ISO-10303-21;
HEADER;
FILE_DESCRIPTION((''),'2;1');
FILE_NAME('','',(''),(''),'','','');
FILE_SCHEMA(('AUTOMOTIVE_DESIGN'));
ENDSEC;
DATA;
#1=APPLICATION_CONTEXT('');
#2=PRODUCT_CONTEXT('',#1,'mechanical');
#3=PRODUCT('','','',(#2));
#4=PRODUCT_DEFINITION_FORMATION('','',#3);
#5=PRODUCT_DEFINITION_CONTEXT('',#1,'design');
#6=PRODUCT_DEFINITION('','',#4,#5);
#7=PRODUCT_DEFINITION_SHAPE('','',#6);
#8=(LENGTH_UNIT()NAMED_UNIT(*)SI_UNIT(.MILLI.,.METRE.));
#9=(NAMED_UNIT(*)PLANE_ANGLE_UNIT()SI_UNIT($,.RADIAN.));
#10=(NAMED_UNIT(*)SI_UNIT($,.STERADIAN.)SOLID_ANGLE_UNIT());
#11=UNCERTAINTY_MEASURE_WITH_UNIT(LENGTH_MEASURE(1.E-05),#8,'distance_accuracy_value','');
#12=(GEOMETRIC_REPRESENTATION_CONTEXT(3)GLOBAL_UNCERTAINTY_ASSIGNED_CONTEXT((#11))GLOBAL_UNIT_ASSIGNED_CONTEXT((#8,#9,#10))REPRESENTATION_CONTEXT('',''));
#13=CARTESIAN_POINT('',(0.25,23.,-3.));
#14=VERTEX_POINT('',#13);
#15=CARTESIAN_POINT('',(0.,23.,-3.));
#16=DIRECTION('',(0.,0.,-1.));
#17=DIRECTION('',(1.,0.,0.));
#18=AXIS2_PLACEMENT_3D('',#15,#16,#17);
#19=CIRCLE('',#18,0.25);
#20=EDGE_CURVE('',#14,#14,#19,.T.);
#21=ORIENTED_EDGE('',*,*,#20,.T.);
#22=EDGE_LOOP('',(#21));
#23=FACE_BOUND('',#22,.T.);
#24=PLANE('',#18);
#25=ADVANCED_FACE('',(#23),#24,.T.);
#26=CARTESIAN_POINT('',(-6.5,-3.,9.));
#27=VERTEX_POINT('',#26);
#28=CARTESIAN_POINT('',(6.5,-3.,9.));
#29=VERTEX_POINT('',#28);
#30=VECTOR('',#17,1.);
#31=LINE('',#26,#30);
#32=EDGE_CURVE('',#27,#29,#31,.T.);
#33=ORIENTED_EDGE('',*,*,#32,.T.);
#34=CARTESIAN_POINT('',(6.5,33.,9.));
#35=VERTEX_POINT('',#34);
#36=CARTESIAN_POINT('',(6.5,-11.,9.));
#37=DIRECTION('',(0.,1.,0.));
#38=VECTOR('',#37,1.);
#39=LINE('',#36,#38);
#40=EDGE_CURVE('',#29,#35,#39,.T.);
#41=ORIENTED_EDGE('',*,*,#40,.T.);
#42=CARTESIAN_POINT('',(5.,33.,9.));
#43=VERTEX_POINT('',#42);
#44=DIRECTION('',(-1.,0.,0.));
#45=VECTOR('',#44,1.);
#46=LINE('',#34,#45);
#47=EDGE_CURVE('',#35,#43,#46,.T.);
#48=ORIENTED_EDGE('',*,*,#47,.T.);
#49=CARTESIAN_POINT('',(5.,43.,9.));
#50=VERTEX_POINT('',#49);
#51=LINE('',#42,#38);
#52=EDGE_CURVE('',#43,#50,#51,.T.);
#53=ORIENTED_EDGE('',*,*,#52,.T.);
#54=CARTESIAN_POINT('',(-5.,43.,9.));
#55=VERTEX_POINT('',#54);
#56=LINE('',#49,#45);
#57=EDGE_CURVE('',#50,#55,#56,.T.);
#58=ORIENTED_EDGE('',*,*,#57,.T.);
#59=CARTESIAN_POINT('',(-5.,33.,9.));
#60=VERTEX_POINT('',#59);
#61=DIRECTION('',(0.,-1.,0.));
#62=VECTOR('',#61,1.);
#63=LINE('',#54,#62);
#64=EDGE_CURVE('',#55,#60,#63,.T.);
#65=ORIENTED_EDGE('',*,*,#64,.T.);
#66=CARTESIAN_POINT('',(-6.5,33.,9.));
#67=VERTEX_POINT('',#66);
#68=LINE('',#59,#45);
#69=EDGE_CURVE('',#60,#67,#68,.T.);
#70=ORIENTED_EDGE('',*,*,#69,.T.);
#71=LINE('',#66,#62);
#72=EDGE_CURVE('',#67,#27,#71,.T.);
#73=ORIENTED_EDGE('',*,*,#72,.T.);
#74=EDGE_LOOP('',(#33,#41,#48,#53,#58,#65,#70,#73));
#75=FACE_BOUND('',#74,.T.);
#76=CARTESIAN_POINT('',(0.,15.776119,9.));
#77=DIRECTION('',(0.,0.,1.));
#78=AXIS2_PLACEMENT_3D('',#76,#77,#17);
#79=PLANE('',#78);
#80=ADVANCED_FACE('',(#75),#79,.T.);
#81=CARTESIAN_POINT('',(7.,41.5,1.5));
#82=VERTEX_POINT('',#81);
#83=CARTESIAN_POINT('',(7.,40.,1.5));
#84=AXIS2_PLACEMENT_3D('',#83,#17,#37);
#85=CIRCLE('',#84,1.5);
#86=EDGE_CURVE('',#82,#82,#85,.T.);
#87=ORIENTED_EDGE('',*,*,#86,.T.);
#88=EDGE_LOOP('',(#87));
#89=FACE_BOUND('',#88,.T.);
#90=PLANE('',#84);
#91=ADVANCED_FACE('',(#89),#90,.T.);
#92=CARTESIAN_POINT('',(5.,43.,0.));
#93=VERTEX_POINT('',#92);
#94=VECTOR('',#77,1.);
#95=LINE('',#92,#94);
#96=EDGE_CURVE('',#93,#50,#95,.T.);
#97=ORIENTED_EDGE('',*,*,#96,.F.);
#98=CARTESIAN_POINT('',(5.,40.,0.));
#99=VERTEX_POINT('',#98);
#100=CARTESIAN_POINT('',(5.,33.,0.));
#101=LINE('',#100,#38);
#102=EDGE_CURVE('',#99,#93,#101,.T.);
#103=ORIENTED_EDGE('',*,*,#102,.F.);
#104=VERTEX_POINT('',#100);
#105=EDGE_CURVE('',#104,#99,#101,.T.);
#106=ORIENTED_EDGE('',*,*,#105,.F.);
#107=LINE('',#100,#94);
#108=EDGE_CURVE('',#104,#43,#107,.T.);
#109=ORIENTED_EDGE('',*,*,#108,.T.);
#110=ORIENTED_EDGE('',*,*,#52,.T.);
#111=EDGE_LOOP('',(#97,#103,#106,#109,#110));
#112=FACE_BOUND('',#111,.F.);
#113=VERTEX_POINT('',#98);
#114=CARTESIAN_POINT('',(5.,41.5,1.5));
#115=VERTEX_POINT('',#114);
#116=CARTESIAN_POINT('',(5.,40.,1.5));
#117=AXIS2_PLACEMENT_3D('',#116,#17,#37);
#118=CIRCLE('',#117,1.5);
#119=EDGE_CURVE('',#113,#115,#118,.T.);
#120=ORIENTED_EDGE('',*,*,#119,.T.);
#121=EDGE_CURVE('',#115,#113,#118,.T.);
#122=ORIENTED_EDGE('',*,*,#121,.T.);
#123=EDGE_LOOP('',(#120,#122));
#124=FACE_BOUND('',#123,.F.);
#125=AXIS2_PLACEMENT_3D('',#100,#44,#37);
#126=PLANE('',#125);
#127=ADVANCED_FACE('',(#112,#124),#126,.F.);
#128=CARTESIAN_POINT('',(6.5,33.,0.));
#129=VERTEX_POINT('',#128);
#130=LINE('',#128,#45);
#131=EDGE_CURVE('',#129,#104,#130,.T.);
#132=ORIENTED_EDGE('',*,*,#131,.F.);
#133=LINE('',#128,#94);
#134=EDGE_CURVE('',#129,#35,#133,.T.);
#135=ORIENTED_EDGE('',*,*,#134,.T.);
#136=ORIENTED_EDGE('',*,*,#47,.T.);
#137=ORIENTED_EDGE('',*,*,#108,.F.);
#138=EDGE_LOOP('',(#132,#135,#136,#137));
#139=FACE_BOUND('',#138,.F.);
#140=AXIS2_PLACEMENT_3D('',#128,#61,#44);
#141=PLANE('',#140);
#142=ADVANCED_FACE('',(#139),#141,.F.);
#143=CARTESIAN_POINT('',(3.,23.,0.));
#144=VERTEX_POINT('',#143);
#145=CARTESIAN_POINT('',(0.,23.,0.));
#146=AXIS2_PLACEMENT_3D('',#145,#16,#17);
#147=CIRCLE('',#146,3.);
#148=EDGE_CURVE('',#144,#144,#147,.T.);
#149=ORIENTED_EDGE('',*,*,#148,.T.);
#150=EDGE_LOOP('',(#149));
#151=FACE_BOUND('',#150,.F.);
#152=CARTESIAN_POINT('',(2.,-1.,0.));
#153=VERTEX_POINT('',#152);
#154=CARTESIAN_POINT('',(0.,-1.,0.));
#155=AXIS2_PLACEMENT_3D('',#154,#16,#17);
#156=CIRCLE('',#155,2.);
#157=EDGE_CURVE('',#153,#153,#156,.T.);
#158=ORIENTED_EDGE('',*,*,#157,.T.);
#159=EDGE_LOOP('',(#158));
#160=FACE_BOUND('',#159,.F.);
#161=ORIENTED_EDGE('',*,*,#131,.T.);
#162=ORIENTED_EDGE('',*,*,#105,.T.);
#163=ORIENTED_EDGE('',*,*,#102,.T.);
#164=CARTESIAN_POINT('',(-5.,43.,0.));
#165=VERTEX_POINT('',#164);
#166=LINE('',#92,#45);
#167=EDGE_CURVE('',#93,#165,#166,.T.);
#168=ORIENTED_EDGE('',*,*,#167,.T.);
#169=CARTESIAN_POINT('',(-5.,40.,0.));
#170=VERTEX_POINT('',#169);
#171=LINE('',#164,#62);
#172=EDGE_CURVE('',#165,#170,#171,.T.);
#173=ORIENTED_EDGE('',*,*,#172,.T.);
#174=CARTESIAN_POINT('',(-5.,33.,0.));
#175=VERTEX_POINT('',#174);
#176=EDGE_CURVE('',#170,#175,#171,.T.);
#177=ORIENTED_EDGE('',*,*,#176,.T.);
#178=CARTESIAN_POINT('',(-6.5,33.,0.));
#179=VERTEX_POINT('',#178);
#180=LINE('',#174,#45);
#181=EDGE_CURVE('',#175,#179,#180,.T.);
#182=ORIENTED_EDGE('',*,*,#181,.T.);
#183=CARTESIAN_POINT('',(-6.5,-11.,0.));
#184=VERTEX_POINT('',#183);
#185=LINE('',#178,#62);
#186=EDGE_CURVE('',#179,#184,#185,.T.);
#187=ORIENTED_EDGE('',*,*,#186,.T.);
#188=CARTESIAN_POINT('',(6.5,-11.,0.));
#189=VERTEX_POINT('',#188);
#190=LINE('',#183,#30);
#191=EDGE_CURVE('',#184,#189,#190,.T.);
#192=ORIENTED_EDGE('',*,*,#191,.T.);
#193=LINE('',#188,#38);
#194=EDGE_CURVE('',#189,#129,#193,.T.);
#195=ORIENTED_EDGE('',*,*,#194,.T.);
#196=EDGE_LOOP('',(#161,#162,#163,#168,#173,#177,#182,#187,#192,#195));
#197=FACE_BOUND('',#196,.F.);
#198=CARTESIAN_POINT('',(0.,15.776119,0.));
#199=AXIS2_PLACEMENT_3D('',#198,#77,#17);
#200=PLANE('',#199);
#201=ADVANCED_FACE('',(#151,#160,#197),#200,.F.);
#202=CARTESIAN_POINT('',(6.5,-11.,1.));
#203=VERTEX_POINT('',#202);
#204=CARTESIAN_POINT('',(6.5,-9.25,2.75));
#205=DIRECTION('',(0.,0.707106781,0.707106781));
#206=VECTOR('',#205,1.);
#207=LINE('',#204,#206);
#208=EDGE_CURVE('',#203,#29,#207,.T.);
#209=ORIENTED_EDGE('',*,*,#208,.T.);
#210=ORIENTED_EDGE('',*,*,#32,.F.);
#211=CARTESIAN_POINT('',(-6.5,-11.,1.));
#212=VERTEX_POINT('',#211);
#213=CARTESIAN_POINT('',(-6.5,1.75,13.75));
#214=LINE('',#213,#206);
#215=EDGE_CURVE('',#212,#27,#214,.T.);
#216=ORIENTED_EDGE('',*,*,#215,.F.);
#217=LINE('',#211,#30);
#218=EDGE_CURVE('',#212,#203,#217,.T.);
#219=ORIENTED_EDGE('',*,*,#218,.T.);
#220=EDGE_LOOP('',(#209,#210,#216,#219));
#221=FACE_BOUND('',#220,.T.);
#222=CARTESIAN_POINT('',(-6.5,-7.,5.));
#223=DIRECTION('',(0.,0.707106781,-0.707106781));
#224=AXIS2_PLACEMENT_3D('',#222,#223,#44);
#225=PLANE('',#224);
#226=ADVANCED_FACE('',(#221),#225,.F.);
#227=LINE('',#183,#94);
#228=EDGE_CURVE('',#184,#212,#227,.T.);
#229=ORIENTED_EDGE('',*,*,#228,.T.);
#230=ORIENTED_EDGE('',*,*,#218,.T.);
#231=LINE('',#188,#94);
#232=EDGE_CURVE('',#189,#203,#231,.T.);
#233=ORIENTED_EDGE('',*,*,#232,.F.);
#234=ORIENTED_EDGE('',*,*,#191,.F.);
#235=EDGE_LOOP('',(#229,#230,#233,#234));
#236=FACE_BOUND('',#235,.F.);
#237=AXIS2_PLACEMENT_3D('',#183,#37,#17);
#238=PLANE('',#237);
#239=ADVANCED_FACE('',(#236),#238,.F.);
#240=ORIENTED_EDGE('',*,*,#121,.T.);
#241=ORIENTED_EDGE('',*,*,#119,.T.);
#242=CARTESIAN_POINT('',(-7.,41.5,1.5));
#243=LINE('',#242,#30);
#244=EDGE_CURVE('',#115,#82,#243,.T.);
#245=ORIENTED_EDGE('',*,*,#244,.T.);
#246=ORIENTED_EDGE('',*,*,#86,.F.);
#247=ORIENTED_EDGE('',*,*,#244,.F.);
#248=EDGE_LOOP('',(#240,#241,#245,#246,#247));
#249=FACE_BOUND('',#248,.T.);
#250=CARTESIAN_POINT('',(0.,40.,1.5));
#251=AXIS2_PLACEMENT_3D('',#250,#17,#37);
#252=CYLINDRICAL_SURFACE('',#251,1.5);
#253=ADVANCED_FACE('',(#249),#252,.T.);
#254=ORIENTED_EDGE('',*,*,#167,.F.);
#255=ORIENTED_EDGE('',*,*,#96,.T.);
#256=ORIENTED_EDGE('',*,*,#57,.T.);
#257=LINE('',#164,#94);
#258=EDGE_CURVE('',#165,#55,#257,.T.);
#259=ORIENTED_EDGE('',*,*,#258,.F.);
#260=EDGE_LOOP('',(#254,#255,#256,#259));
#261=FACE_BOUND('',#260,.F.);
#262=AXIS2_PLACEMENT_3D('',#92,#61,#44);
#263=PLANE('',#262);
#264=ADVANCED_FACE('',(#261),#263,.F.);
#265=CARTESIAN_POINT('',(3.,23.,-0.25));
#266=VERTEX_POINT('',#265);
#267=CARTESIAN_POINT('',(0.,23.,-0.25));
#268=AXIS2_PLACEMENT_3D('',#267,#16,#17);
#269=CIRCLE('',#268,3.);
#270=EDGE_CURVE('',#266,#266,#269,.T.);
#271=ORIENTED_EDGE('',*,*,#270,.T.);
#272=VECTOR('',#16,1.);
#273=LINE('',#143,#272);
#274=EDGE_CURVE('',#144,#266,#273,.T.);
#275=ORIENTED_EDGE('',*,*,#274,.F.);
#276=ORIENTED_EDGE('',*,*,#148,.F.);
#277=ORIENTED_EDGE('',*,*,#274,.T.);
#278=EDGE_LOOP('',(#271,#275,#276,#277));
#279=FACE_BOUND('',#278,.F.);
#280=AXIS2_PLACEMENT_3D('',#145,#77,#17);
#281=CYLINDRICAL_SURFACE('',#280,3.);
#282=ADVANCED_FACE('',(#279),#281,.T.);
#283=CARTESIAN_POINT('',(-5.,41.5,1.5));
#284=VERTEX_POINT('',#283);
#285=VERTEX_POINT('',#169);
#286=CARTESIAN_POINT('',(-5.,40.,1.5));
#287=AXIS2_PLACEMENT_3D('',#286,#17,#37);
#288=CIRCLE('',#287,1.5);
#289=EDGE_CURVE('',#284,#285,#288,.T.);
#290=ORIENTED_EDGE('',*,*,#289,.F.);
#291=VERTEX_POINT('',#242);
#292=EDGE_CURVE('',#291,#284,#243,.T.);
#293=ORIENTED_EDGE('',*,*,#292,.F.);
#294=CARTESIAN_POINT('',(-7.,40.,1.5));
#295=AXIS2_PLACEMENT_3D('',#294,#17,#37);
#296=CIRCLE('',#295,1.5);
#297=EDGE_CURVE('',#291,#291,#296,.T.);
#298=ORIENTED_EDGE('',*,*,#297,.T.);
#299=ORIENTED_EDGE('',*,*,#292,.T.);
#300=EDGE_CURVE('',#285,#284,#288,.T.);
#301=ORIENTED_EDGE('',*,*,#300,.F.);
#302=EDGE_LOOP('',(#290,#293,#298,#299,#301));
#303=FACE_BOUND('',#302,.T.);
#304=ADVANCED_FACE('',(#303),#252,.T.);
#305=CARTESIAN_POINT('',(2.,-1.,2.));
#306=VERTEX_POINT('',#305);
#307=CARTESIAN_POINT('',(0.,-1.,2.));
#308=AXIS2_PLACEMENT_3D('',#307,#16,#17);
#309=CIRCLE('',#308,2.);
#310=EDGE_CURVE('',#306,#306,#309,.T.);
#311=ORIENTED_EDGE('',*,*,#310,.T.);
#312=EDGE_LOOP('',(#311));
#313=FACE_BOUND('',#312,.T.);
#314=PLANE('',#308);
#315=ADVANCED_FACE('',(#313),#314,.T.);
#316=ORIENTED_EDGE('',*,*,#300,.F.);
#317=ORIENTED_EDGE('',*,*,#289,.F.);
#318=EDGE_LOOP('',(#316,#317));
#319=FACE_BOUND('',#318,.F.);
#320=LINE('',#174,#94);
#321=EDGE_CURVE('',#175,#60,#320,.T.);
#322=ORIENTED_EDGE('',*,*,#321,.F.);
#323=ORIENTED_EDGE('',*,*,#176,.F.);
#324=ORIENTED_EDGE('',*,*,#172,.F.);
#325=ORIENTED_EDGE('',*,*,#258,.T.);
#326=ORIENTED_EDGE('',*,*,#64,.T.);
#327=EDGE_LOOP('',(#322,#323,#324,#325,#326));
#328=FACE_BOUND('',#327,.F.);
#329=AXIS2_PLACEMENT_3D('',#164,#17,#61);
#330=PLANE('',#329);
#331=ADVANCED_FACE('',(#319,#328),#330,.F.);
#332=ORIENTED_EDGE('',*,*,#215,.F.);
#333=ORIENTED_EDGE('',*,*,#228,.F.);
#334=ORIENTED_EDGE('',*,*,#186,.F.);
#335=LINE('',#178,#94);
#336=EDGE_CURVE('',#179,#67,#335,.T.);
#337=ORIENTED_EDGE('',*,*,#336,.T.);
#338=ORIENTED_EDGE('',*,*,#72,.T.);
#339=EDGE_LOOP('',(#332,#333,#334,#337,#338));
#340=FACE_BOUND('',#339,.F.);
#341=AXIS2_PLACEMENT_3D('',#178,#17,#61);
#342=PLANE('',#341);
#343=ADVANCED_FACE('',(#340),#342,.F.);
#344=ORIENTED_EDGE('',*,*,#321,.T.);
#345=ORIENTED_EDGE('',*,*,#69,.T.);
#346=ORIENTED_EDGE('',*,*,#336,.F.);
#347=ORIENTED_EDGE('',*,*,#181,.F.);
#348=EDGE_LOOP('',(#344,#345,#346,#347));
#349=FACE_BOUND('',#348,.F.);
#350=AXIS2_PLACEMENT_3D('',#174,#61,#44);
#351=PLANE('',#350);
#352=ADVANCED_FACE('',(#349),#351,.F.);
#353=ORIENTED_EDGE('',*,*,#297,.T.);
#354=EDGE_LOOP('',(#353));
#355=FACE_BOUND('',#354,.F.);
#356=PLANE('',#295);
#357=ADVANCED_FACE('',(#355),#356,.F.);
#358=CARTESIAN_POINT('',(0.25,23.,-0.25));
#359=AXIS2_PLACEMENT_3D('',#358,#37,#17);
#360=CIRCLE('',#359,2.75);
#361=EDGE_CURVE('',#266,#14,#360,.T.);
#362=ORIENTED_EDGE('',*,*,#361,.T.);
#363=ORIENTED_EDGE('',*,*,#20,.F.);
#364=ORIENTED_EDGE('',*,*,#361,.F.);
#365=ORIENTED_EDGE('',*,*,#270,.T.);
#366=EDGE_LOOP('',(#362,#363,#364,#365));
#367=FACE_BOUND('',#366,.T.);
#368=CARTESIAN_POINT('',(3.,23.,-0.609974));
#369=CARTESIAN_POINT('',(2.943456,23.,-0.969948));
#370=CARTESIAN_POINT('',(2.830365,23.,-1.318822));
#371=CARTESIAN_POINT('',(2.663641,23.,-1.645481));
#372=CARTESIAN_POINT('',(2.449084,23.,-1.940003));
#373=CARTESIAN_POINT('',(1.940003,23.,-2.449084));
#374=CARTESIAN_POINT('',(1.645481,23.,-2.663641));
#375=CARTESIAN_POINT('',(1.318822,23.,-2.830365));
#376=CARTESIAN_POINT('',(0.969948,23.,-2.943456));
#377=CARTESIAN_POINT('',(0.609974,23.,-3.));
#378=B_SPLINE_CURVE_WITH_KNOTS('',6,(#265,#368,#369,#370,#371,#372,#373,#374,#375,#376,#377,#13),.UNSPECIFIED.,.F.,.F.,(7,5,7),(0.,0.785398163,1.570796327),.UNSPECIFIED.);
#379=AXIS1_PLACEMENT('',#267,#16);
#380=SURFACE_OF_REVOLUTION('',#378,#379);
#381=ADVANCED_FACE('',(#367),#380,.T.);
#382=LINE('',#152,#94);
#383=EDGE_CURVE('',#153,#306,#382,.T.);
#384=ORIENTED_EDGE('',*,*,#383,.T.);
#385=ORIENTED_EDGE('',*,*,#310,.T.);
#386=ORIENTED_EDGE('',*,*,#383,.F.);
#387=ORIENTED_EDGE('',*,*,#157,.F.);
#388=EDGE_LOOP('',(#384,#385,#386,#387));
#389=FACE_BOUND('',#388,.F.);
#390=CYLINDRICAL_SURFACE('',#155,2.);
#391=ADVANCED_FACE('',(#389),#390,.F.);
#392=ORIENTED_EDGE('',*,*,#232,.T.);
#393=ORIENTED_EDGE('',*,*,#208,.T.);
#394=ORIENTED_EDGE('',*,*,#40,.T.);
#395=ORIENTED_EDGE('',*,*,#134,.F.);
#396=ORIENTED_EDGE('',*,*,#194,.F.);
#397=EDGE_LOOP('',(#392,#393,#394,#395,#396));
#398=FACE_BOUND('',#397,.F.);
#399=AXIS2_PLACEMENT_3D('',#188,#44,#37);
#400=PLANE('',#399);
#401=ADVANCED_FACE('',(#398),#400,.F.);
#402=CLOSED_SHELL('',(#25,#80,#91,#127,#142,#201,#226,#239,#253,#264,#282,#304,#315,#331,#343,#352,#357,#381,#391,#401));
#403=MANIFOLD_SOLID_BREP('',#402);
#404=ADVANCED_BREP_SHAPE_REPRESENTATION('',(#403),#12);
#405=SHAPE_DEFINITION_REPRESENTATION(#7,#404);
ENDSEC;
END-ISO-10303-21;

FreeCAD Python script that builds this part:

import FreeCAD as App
import Part
import Sketcher

V = App.Vector


def edges_at(feature, points):
    """Names of the edges that pass closest to the given points."""
    edges = feature.Shape.Edges
    near = lambda p: min(range(len(edges)), key=lambda i: edges[i].distToShape(Part.Vertex(*p))[0])
    return sorted({f"Edge{near(p) + 1}" for p in points})


def add_polygon(sketch, points):
    """Adds a closed chain of lines whose ends are joined by coincident constraints."""
    first, n = sketch.GeometryCount, len(points)
    for a, b in zip(points, points[1:] + points[:1]):
        sketch.addGeometry(Part.LineSegment(App.Vector(*a, 0), App.Vector(*b, 0)), False)
    for i in range(n):
        sketch.addConstraint(Sketcher.Constraint("Coincident", first + i, 2, first + (i + 1) % n, 1))

doc = App.newDocument("Part")
params = doc.addObject("Spreadsheet::Sheet", "Params")
for row, (alias, value) in enumerate([
    ("sketch1_width", "10 mm"),
    ("sketch1_width2", "13 mm"),
    ("sketch1_height", "44 mm"),
    ("pad1_length", "9 mm"),
    ("sketch2_diameter", "3 mm"),
    ("pad2_length", "14 mm"),
    ("sketch3_diameter", "4 mm"),
    ("pocket1_length", "2 mm"),
    ("sketch4_diameter", "6 mm"),
    ("pad3_length", "3 mm"),
    ("fillet_radius", "2.75 mm"),
    ("chamfer_size", "8 mm"),
], start=1):
    params.set(f"A{row}", alias)
    params.set(f"B{row}", "=" + value)
    params.setAlias(f"B{row}", alias)

body = doc.addObject("PartDesign::Body", "Body")

# Sketch on XY plane
sketch1 = body.newObject("Sketcher::SketchObject", "Sketch")
sketch1.AttachmentSupport = (doc.getObject("XY_Plane"), [""])
sketch1.MapMode = "FlatFace"
add_polygon(sketch1, [(6.5, -11), (6.5, 33), (5, 33), (5, 43), (-5, 43), (-5, 33), (-6.5, 33), (-6.5, -11)])  # lines 0-7
sketch1.addConstraint([
    Sketcher.Constraint("Vertical", 0),
    Sketcher.Constraint("Horizontal", 1),
    Sketcher.Constraint("Vertical", 2),
    Sketcher.Constraint("Horizontal", 3),
    Sketcher.Constraint("Vertical", 4),
    Sketcher.Constraint("Horizontal", 5),
    Sketcher.Constraint("Vertical", 6),
    Sketcher.Constraint("Horizontal", 7),
    Sketcher.Constraint("Symmetric", 1, 2, 4, 2, -2),
    Sketcher.Constraint("Equal", 1, 5),
    Sketcher.Constraint("Equal", 3, 2),
    Sketcher.Constraint("DistanceX", 3, 2, 3, 1, 10.0),
    Sketcher.Constraint("DistanceX", 7, 1, 7, 2, 13.0),
    Sketcher.Constraint("DistanceY", 0, 1, 0, 2, 44.0),
    Sketcher.Constraint("DistanceY", -1, 1, 0, 2, 33.0),
])
sketch1.setExpression("Constraints[19]", "Params.sketch1_width")
sketch1.setExpression("Constraints[20]", "Params.sketch1_width2")
sketch1.setExpression("Constraints[21]", "Params.sketch1_height")
pad1 = body.newObject("PartDesign::Pad", "Pad")
pad1.Profile = sketch1
pad1.setExpression("Length", "Params.pad1_length")

# Sketch on YZ plane
sketch2 = body.newObject("Sketcher::SketchObject", "Sketch001")
sketch2.AttachmentSupport = (doc.getObject("YZ_Plane"), [""])
sketch2.MapMode = "FlatFace"
sketch2.addGeometry(Part.Circle(V(40, 1.5, 0), V(0, 0, 1), 1.5), False)
sketch2.addConstraint([
    Sketcher.Constraint("Diameter", 0, 3.0),
    Sketcher.Constraint("DistanceX", -1, 1, 0, 3, 40.0),
    Sketcher.Constraint("DistanceY", -1, 1, 0, 3, 1.5),
])
sketch2.setExpression("Constraints[0]", "Params.sketch2_diameter")
pad2 = body.newObject("PartDesign::Pad", "Pad001")
pad2.Profile = sketch2
pad2.setExpression("Length", "Params.pad2_length")
pad2.Midplane = True

# Sketch on XY plane
sketch3 = body.newObject("Sketcher::SketchObject", "Sketch002")
sketch3.AttachmentSupport = (doc.getObject("XY_Plane"), [""])
sketch3.MapMode = "FlatFace"
sketch3.addGeometry(Part.Circle(V(0, -1, 0), V(0, 0, 1), 2), False)
sketch3.addConstraint([
    Sketcher.Constraint("PointOnObject", 0, 3, -2),
    Sketcher.Constraint("Diameter", 0, 4.0),
    Sketcher.Constraint("DistanceY", 0, 3, -1, 1, 1.0),
])
sketch3.setExpression("Constraints[1]", "Params.sketch3_diameter")
pocket1 = body.newObject("PartDesign::Pocket", "Pocket")
pocket1.Profile = sketch3
pocket1.setExpression("Length", "Params.pocket1_length")
pocket1.Reversed = True

# Sketch on XY plane
sketch4 = body.newObject("Sketcher::SketchObject", "Sketch003")
sketch4.AttachmentSupport = (doc.getObject("XY_Plane"), [""])
sketch4.MapMode = "FlatFace"
sketch4.addGeometry(Part.Circle(V(0, 23, 0), V(0, 0, 1), 3), False)
sketch4.addConstraint([
    Sketcher.Constraint("PointOnObject", 0, 3, -2),
    Sketcher.Constraint("Diameter", 0, 6.0),
    Sketcher.Constraint("DistanceY", -1, 1, 0, 3, 23.0),
])
sketch4.setExpression("Constraints[1]", "Params.sketch4_diameter")
pad3 = body.newObject("PartDesign::Pad", "Pad002")
pad3.Profile = sketch4
pad3.setExpression("Length", "Params.pad3_length")
pad3.Reversed = True
doc.recompute()

fillet = body.newObject("PartDesign::Fillet", "Fillet")
fillet.Base = (pad3, edges_at(pad3, [(-3, 23, -3)]))
fillet.setExpression("Radius", "Params.fillet_radius")
doc.recompute()

chamfer = body.newObject("PartDesign::Chamfer", "Chamfer")
chamfer.Base = (fillet, edges_at(fillet, [(0, -11, 9)]))
chamfer.setExpression("Size", "Params.chamfer_size")

doc.recompute()
